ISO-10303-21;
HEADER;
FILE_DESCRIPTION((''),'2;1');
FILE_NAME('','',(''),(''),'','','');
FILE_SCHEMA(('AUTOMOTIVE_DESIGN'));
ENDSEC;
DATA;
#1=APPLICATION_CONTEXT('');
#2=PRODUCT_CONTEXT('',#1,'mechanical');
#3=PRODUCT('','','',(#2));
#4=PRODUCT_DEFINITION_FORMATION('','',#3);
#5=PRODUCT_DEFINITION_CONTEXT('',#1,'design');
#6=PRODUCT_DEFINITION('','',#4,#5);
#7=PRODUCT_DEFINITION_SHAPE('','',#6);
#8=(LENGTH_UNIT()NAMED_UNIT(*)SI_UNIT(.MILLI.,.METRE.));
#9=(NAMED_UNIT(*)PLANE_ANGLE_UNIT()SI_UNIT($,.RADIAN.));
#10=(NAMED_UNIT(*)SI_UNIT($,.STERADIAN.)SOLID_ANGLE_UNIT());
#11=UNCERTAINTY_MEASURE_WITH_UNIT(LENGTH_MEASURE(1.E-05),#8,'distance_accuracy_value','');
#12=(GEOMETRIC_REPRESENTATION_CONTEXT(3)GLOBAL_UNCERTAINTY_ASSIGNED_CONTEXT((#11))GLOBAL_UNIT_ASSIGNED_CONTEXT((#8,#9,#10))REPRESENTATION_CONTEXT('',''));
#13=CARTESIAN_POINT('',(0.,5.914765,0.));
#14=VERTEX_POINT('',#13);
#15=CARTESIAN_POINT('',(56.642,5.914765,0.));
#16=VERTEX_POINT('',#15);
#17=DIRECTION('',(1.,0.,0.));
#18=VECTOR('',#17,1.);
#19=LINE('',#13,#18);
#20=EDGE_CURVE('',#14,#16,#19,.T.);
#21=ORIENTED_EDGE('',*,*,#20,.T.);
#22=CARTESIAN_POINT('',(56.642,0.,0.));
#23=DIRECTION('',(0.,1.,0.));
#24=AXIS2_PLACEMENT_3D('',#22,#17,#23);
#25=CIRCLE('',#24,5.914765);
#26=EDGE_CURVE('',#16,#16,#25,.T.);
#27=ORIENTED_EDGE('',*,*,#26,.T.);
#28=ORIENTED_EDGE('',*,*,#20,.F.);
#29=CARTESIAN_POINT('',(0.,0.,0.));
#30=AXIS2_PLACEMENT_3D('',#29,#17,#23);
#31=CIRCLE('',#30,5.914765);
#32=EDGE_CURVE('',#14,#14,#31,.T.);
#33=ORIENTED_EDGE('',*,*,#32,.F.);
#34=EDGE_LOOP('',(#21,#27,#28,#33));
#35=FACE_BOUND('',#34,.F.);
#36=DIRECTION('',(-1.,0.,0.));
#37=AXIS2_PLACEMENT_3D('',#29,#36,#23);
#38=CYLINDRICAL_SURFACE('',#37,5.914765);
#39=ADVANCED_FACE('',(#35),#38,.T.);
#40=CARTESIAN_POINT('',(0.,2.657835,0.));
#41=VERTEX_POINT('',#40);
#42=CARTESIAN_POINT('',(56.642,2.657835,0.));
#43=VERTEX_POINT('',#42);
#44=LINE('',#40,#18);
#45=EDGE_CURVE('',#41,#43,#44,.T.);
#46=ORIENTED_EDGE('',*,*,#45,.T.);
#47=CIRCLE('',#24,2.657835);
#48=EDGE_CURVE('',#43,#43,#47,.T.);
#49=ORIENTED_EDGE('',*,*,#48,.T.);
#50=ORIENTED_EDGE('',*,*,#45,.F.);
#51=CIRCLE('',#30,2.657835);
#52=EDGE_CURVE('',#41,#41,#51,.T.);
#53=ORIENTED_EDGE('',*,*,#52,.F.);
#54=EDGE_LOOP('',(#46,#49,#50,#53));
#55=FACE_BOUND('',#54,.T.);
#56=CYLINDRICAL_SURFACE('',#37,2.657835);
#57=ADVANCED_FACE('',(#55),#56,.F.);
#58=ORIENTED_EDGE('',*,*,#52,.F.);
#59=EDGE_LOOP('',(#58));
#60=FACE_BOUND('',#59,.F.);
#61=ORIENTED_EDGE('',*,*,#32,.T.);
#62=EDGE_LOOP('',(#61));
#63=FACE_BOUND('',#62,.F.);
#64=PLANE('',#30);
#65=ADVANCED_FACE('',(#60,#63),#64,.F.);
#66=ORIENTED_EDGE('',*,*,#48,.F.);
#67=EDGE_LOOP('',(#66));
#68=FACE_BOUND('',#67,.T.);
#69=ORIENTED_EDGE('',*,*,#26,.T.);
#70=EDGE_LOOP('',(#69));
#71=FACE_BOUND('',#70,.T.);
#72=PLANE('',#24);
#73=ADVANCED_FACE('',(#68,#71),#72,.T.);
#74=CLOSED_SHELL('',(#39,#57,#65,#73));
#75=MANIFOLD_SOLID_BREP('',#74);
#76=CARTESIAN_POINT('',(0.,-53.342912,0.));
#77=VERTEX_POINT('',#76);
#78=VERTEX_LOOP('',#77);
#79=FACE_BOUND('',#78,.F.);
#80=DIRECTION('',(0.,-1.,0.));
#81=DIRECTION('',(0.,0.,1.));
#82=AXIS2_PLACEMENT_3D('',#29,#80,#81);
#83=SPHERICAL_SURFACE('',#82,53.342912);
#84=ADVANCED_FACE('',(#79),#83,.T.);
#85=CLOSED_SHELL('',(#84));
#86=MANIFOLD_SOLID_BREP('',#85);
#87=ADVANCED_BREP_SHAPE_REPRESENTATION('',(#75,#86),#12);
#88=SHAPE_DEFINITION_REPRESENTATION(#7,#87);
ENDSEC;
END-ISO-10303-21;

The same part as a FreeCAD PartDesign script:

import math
import FreeCAD as App
import Part
import Sketcher

doc = App.newDocument("Part")
params = doc.addObject("Spreadsheet::Sheet", "Params")
for row, (alias, value) in enumerate([
    ("revolution_angle", "360 deg"),
    ("pad1_length", "2.23 in"),
], start=1):
    params.set(f"A{row}", alias)
    params.set(f"B{row}", "=" + value)
    params.setAlias(f"B{row}", alias)

body = doc.addObject("PartDesign::Body", "Body")

sketch1 = doc.addObject("Sketcher::SketchObject", "Sketch")
body.addObject(sketch1)
sketch1.AttachmentSupport = (doc.YZ_Plane, [""])
sketch1.MapMode = "FlatFace"
sketch1.addGeometry([
    Part.LineSegment(App.Vector(-53, 0, 0), App.Vector(53, 0, 0)),
    Part.ArcOfCircle(Part.Circle(App.Vector(0, 0, 0), App.Vector(0, 0, 1), 53), math.radians(0), math.radians(180)),
], False)
sketch1.addConstraint([
    Sketcher.Constraint("Coincident", 0, 1, 1, 2),
    Sketcher.Constraint("Coincident", 1, 1, 0, 2),
    Sketcher.Constraint("Horizontal", 0),
    Sketcher.Constraint("Coincident", 1, 3, -1, 1),
    Sketcher.Constraint("PointOnObject", 0, 1, -1),
    Sketcher.Constraint("Radius", 1, 53.342912),
])
revolution = doc.addObject("PartDesign::Revolution", "Revolution")
body.addObject(revolution)
revolution.Profile = sketch1
revolution.ReferenceAxis = (sketch1, ["H_Axis"])
revolution.setExpression("Angle", "Params.revolution_angle")
body2 = doc.addObject("PartDesign::Body", "Body001")

sketch2 = doc.addObject("Sketcher::SketchObject", "Sketch001")
body2.addObject(sketch2)
sketch2.AttachmentSupport = (doc.getObject("YZ_Plane001"), [""])
sketch2.MapMode = "FlatFace"
sketch2.addGeometry([
    Part.Circle(App.Vector(0, 0, 0), App.Vector(0, 0, 1), 5.9),
    Part.Circle(App.Vector(0, 0, 0), App.Vector(0, 0, 1), 2.7),
], False)
sketch2.addConstraint([
    Sketcher.Constraint("Coincident", 0, 3, -1, 1),
    Sketcher.Constraint("Coincident", 1, 3, -1, 1),
    Sketcher.Constraint("Diameter", 0, 11.82953),
    Sketcher.Constraint("Diameter", 1, 5.31567),
])
pad1 = doc.addObject("PartDesign::Pad", "Pad")
body2.addObject(pad1)
pad1.Profile = sketch2
pad1.setExpression("Length", "Params.pad1_length")

doc.recompute()
